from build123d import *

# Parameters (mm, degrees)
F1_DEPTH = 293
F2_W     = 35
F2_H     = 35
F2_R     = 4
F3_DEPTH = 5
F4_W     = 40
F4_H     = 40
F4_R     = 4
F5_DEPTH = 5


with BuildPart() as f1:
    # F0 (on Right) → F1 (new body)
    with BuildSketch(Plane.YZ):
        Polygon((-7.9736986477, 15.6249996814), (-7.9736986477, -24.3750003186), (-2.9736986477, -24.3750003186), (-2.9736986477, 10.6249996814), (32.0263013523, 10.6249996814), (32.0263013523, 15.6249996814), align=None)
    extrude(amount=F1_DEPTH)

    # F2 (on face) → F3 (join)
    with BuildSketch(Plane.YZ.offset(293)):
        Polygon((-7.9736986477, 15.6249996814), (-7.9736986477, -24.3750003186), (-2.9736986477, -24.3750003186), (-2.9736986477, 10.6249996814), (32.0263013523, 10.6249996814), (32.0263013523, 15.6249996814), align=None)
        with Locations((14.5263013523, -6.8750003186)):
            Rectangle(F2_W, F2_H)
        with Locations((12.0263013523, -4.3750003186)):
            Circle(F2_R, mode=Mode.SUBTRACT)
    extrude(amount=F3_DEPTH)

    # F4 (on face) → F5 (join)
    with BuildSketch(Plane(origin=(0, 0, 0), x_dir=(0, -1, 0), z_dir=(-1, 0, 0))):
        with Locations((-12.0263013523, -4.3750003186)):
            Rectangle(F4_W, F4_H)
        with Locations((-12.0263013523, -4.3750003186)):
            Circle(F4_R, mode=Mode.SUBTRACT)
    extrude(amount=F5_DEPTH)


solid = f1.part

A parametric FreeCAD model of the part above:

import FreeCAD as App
import Part
import Sketcher

doc = App.newDocument("Part")
body = doc.addObject("PartDesign::Body", "Body")

# Sketch on YZ plane
sketch1 = body.newObject("Sketcher::SketchObject", "Sketch")
sketch1.AttachmentSupport = (doc.getObject("YZ_Plane"), [""])
sketch1.MapMode = "FlatFace"
sketch1.addGeometry([
    Part.LineSegment(App.Vector(-8, 16, 0), App.Vector(-8, -24, 0)),  # 0
    Part.LineSegment(App.Vector(-8, -24, 0), App.Vector(-3, -24, 0)),  # 1
    Part.LineSegment(App.Vector(-3, -24, 0), App.Vector(-3, 11, 0)),  # 2
    Part.LineSegment(App.Vector(-3, 11, 0), App.Vector(32, 11, 0)),  # 3
    Part.LineSegment(App.Vector(32, 11, 0), App.Vector(32, 16, 0)),  # 4
    Part.LineSegment(App.Vector(32, 16, 0), App.Vector(-8, 16, 0)),  # 5
], False)
sketch1.addConstraint([
    Sketcher.Constraint("Coincident", 0, 2, 1, 1),
    Sketcher.Constraint("Coincident", 1, 2, 2, 1),
    Sketcher.Constraint("Coincident", 2, 2, 3, 1),
    Sketcher.Constraint("Coincident", 3, 2, 4, 1),
    Sketcher.Constraint("Coincident", 4, 2, 5, 1),
    Sketcher.Constraint("Coincident", 5, 2, 0, 1),
    Sketcher.Constraint("Vertical", 0),
    Sketcher.Constraint("Horizontal", 1),
    Sketcher.Constraint("Vertical", 2),
    Sketcher.Constraint("Horizontal", 3),
    Sketcher.Constraint("Vertical", 4),
    Sketcher.Constraint("Horizontal", 5),
    Sketcher.Constraint("Equal", 5, 0),
    Sketcher.Constraint("Equal", 3, 2),
    Sketcher.Constraint("DistanceX", 1, 1, 1, 2, 5.0),
    Sketcher.Constraint("DistanceX", 3, 1, 3, 2, 35.0),
    Sketcher.Constraint("DistanceY", 0, 2, -1, 1, 24.375),
    Sketcher.Constraint("DistanceX", 0, 2, -1, 1, 7.973699),
])
pad1 = body.newObject("PartDesign::Pad", "Pad")
pad1.Profile = sketch1
pad1.Length = 293

# Sketch on YZ plane
sketch2 = body.newObject("Sketcher::SketchObject", "Sketch001")
sketch2.AttachmentSupport = (doc.getObject("YZ_Plane"), [""])
sketch2.MapMode = "FlatFace"
sketch2.AttachmentOffset = App.Placement(App.Vector(0, 0, 293), App.Rotation())
sketch2.addGeometry([
    Part.LineSegment(App.Vector(-8, 15.6, 0), App.Vector(-8, -24.4, 0)),  # 0
    Part.LineSegment(App.Vector(-8, -24.4, 0), App.Vector(32, -24.4, 0)),  # 1
    Part.LineSegment(App.Vector(32, -24.4, 0), App.Vector(32, 15.6, 0)),  # 2
    Part.LineSegment(App.Vector(32, 15.6, 0), App.Vector(-8, 15.6, 0)),  # 3
    Part.Circle(App.Vector(12, -4.4, 0), App.Vector(0, 0, 1), 4),  # 4
], False)
sketch2.addConstraint([
    Sketcher.Constraint("Coincident", 0, 2, 1, 1),
    Sketcher.Constraint("Coincident", 1, 2, 2, 1),
    Sketcher.Constraint("Coincident", 2, 2, 3, 1),
    Sketcher.Constraint("Coincident", 3, 2, 0, 1),
    Sketcher.Constraint("Vertical", 0),
    Sketcher.Constraint("Horizontal", 1),
    Sketcher.Constraint("Vertical", 2),
    Sketcher.Constraint("Horizontal", 3),
    Sketcher.Constraint("Equal", 3, 0),
    Sketcher.Constraint("Diameter", 4, 8.0),
    Sketcher.Constraint("DistanceX", 1, 1, 1, 2, 40.0),
    Sketcher.Constraint("DistanceX", 0, 2, 4, 3, 20.0),
    Sketcher.Constraint("DistanceY", 0, 2, 4, 3, 20.0),
    Sketcher.Constraint("DistanceY", 4, 3, -1, 1, 4.375),
    Sketcher.Constraint("DistanceX", -1, 1, 4, 3, 12.026301),
])
pad2 = body.newObject("PartDesign::Pad", "Pad001")
pad2.Profile = sketch2
pad2.Length = 5

# Sketch on YZ plane
sketch3 = body.newObject("Sketcher::SketchObject", "Sketch002")
sketch3.AttachmentSupport = (doc.getObject("YZ_Plane"), [""])
sketch3.MapMode = "FlatFace"
sketch3.addGeometry([
    Part.LineSegment(App.Vector(32, 15.6, 0), App.Vector(32, -24.4, 0)),  # 0
    Part.LineSegment(App.Vector(32, -24.4, 0), App.Vector(-8, -24.4, 0)),  # 1
    Part.LineSegment(App.Vector(-8, -24.4, 0), App.Vector(-8, 15.6, 0)),  # 2
    Part.LineSegment(App.Vector(-8, 15.6, 0), App.Vector(32, 15.6, 0)),  # 3
    Part.Circle(App.Vector(12, -4.4, 0), App.Vector(0, 0, 1), 4),  # 4
], False)
sketch3.addConstraint([
    Sketcher.Constraint("Coincident", 0, 2, 1, 1),
    Sketcher.Constraint("Coincident", 1, 2, 2, 1),
    Sketcher.Constraint("Coincident", 2, 2, 3, 1),
    Sketcher.Constraint("Coincident", 3, 2, 0, 1),
    Sketcher.Constraint("Vertical", 0),
    Sketcher.Constraint("Horizontal", 1),
    Sketcher.Constraint("Vertical", 2),
    Sketcher.Constraint("Horizontal", 3),
    Sketcher.Constraint("Equal", 3, 0),
    Sketcher.Constraint("Diameter", 4, 8.0),
    Sketcher.Constraint("DistanceX", 1, 2, 1, 1, 40.0),
    Sketcher.Constraint("DistanceX", 4, 3, 0, 2, 20.0),
    Sketcher.Constraint("DistanceY", 0, 2, 4, 3, 20.0),
    Sketcher.Constraint("DistanceY", 4, 3, -1, 1, 4.375),
    Sketcher.Constraint("DistanceX", -1, 1, 4, 3, 12.026301),
])
pad3 = body.newObject("PartDesign::Pad", "Pad002")
pad3.Profile = sketch3
pad3.Length = 5
pad3.Reversed = True

doc.recompute()
